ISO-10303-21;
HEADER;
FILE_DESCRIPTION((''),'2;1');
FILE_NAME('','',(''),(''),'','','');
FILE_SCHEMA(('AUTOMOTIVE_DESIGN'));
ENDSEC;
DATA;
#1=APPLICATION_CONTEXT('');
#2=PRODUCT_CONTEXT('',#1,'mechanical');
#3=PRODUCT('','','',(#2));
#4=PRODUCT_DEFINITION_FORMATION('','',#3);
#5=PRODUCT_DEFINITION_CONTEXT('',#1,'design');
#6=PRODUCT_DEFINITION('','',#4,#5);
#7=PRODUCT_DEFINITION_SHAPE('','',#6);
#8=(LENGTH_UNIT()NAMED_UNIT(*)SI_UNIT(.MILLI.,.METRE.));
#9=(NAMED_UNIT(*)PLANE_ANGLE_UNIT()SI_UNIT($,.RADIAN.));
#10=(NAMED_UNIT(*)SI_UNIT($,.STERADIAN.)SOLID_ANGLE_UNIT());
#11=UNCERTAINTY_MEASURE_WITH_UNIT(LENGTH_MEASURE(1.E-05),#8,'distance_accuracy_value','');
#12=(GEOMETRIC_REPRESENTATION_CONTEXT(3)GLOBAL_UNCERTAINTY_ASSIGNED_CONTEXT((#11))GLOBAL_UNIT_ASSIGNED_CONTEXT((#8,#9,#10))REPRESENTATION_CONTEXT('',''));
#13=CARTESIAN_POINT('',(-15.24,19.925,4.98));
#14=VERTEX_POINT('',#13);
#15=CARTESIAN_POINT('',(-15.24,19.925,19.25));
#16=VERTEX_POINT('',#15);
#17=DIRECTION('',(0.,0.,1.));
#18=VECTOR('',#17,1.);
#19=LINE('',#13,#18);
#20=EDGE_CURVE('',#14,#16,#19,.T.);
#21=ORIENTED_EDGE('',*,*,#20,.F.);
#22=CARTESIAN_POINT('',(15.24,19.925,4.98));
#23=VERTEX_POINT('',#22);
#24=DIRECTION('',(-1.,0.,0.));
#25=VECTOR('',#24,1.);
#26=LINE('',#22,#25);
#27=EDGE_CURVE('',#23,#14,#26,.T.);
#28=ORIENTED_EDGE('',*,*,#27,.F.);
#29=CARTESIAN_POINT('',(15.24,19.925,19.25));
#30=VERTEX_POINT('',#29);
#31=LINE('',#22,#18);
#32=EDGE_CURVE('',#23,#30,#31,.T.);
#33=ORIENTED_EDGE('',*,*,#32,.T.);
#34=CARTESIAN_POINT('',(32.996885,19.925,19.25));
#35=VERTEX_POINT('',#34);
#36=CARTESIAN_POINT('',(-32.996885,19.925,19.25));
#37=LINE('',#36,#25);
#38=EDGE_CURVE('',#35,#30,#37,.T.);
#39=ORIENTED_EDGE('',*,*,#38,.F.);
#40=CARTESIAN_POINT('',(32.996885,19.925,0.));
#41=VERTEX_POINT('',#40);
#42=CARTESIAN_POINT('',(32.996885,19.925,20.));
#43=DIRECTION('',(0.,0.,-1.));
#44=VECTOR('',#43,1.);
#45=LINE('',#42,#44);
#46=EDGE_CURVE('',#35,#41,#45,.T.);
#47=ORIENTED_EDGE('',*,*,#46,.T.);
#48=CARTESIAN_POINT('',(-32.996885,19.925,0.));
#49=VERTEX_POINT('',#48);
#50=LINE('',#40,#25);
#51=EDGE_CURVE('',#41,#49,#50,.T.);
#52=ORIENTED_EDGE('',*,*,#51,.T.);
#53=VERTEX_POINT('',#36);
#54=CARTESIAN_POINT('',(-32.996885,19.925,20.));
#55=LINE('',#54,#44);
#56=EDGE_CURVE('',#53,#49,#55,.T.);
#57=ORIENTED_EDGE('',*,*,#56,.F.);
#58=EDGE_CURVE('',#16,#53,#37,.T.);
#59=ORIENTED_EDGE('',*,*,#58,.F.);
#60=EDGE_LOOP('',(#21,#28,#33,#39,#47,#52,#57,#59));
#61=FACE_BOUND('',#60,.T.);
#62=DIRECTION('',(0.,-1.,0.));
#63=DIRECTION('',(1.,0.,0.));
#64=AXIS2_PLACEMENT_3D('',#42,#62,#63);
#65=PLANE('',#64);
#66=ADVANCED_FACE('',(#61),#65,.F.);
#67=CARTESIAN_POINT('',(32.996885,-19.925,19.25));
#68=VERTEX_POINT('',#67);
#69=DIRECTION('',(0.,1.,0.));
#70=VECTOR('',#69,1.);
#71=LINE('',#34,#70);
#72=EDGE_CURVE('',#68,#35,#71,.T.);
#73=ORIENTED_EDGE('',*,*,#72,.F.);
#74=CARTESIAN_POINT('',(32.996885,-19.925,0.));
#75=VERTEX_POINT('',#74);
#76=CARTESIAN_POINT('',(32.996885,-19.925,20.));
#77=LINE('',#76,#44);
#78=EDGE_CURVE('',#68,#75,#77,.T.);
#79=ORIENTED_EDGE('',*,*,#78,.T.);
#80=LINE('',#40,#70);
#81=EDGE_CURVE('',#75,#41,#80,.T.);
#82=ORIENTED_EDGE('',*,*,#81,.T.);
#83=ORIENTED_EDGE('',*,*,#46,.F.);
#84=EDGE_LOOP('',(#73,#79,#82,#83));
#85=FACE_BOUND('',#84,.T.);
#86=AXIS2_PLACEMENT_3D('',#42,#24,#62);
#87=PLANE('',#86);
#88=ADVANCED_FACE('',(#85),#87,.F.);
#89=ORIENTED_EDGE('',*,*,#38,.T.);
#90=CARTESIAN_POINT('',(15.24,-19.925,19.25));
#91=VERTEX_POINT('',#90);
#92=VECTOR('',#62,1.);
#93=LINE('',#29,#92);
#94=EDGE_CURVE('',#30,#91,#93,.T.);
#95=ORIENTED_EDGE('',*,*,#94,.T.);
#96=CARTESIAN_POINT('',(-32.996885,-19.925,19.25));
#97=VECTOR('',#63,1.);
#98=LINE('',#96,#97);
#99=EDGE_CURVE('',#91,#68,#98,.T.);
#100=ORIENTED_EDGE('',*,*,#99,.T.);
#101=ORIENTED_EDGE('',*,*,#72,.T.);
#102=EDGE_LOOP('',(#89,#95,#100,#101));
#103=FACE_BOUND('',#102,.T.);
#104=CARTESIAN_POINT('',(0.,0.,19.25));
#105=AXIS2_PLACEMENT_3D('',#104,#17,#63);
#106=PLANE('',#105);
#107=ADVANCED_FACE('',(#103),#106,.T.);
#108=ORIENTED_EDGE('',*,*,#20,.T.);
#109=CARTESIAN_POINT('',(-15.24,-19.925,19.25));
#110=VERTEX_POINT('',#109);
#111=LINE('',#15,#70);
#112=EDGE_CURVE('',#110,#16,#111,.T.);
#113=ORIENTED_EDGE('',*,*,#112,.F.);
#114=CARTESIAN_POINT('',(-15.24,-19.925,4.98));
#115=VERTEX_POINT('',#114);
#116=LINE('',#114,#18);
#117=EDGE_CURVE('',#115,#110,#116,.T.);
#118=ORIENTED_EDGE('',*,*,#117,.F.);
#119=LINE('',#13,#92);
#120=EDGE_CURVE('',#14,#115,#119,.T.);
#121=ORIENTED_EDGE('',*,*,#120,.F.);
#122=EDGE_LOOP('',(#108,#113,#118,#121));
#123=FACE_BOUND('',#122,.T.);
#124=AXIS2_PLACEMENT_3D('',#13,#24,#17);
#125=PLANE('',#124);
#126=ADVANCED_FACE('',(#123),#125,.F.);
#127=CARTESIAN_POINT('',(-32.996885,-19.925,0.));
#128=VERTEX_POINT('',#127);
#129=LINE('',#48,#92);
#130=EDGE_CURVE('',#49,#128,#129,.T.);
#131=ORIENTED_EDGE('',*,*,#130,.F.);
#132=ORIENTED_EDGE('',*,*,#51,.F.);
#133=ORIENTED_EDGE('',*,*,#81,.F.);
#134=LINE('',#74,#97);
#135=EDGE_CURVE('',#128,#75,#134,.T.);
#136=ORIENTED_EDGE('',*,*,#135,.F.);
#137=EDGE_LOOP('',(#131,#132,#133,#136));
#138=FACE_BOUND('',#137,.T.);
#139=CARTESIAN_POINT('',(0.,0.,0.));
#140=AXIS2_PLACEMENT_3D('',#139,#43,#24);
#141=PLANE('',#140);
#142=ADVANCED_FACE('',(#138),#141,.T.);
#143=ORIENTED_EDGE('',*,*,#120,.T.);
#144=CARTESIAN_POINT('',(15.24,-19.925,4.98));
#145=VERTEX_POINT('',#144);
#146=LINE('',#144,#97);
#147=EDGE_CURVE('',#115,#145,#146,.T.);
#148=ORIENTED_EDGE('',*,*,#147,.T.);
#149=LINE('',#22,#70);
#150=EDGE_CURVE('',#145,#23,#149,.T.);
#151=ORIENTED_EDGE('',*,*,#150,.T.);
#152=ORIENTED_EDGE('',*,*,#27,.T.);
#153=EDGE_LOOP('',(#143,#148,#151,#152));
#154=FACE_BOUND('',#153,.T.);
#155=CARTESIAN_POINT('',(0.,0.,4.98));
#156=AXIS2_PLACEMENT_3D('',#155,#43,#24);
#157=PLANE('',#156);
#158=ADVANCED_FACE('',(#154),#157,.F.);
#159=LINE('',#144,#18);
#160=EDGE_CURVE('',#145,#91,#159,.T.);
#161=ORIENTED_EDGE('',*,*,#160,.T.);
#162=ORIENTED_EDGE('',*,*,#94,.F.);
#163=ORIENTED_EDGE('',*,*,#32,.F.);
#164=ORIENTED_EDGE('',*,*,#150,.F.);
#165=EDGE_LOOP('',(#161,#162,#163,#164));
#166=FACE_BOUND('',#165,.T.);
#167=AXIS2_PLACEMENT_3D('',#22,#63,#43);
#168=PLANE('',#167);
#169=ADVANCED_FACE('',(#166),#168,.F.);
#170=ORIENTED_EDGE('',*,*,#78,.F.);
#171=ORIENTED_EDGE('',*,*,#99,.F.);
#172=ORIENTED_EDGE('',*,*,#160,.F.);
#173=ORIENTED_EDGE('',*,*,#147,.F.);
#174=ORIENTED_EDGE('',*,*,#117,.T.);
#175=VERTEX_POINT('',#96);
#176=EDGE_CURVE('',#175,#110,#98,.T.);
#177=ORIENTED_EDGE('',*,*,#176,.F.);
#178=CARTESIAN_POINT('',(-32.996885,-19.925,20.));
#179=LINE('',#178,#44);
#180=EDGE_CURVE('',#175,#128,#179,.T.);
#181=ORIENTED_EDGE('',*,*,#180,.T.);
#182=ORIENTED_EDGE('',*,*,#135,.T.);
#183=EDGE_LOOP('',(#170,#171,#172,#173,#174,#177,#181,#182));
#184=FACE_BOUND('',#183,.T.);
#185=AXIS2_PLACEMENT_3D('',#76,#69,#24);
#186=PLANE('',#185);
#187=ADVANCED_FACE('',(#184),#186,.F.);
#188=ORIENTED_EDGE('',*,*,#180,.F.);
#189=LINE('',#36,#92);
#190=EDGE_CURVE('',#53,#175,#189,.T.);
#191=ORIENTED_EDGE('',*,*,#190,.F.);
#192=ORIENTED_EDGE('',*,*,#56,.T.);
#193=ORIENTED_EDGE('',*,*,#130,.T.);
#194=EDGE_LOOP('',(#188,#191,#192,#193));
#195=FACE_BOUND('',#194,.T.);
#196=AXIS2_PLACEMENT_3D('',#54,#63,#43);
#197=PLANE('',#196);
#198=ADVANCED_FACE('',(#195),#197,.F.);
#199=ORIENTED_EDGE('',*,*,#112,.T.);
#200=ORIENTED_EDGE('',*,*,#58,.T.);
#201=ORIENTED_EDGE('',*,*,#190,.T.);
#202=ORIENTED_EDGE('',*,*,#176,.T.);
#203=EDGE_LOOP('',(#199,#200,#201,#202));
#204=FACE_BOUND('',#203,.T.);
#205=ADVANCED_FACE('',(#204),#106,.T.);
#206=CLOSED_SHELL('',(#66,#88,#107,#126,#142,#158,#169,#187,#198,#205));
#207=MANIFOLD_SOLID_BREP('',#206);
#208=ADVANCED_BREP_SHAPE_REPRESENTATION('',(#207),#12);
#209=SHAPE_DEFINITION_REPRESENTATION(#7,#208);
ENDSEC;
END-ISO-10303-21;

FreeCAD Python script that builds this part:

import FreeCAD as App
import Part
import Sketcher

V = App.Vector
Q = App.Units.Quantity


def add_polygon(sketch, points):
    """Adds a closed chain of lines whose ends are joined by coincident constraints."""
    first, n = sketch.GeometryCount, len(points)
    for a, b in zip(points, points[1:] + points[:1]):
        sketch.addGeometry(Part.LineSegment(App.Vector(*a, 0), App.Vector(*b, 0)), False)
    for i in range(n):
        sketch.addConstraint(Sketcher.Constraint("Coincident", first + i, 2, first + (i + 1) % n, 1))

doc = App.newDocument("Part")
body = doc.addObject("PartDesign::Body", "Body")

# Sketch on XY plane
sketch1 = doc.addObject("Sketcher::SketchObject", "Sketch")
body.addObject(sketch1)
sketch1.AttachmentSupport = (doc.XY_Plane, [""])
sketch1.MapMode = "FlatFace"
add_polygon(sketch1, [(-33, 20), (-33, -20), (33, -20), (33, 20)])  # lines 0-3
sketch1.addConstraint(Sketcher.Constraint("Vertical", 0))
sketch1.addConstraint(Sketcher.Constraint("Horizontal", 1))
sketch1.addConstraint(Sketcher.Constraint("Vertical", 2))
sketch1.addConstraint(Sketcher.Constraint("Horizontal", 3))
sketch1.addConstraint(Sketcher.Constraint("Symmetric", 0, 2, 2, 2, -1, 1))
sketch1.addConstraint(Sketcher.Constraint("DistanceY", 0, 2, 0, 1, Q("39.85 mm")))
sketch1.addConstraint(Sketcher.Constraint("DistanceX", 1, 1, 1, 2, Q("65.993771 mm")))
pad1 = doc.addObject("PartDesign::Pad", "Pad")
body.addObject(pad1)
pad1.Profile = sketch1
pad1.Length = 20

# Sketch on XY plane
sketch2 = doc.addObject("Sketcher::SketchObject", "Sketch001")
body.addObject(sketch2)
sketch2.AttachmentSupport = (doc.XY_Plane, [""])
sketch2.MapMode = "FlatFace"
sketch2.AttachmentOffset = App.Placement(V(0, 0, 20), App.Rotation())
add_polygon(sketch2, [(-15, 20), (-15, -20), (15, -20), (15, 20)])  # lines 0-3
sketch2.addConstraint(Sketcher.Constraint("Vertical", 0))
sketch2.addConstraint(Sketcher.Constraint("Horizontal", 1))
sketch2.addConstraint(Sketcher.Constraint("Vertical", 2))
sketch2.addConstraint(Sketcher.Constraint("Horizontal", 3))
sketch2.addConstraint(Sketcher.Constraint("Symmetric", 0, 2, 2, 2, -1, 1))
sketch2.addConstraint(Sketcher.Constraint("DistanceX", 1, 1, 1, 2, Q("30.48 mm")))
sketch2.addConstraint(Sketcher.Constraint("DistanceY", 0, 2, 0, 1, Q("39.85 mm")))
pocket1 = doc.addObject("PartDesign::Pocket", "Pocket")
body.addObject(pocket1)
pocket1.Profile = sketch2
pocket1.Length = 15.02

# Sketch on XY plane
sketch3 = doc.addObject("Sketcher::SketchObject", "Sketch002")
body.addObject(sketch3)
sketch3.AttachmentSupport = (doc.XY_Plane, [""])
sketch3.MapMode = "FlatFace"
sketch3.AttachmentOffset = App.Placement(V(0, 0, 20), App.Rotation())
add_polygon(sketch3, [(-33, 20), (-33, -20), (33, -20), (33, 20)])  # lines 0-3
sketch3.addConstraint(Sketcher.Constraint("Vertical", 0))
sketch3.addConstraint(Sketcher.Constraint("Horizontal", 1))
sketch3.addConstraint(Sketcher.Constraint("Vertical", 2))
sketch3.addConstraint(Sketcher.Constraint("Horizontal", 3))
sketch3.addConstraint(Sketcher.Constraint("Symmetric", 0, 2, 2, 2, -1, 1))
sketch3.addConstraint(Sketcher.Constraint("DistanceY", 0, 2, 0, 1, Q("39.85 mm")))
sketch3.addConstraint(Sketcher.Constraint("DistanceX", 1, 1, 1, 2, Q("65.993771 mm")))
pocket2 = doc.addObject("PartDesign::Pocket", "Pocket001")
body.addObject(pocket2)
pocket2.Profile = sketch3
pocket2.Length = 0.75

doc.recompute()
